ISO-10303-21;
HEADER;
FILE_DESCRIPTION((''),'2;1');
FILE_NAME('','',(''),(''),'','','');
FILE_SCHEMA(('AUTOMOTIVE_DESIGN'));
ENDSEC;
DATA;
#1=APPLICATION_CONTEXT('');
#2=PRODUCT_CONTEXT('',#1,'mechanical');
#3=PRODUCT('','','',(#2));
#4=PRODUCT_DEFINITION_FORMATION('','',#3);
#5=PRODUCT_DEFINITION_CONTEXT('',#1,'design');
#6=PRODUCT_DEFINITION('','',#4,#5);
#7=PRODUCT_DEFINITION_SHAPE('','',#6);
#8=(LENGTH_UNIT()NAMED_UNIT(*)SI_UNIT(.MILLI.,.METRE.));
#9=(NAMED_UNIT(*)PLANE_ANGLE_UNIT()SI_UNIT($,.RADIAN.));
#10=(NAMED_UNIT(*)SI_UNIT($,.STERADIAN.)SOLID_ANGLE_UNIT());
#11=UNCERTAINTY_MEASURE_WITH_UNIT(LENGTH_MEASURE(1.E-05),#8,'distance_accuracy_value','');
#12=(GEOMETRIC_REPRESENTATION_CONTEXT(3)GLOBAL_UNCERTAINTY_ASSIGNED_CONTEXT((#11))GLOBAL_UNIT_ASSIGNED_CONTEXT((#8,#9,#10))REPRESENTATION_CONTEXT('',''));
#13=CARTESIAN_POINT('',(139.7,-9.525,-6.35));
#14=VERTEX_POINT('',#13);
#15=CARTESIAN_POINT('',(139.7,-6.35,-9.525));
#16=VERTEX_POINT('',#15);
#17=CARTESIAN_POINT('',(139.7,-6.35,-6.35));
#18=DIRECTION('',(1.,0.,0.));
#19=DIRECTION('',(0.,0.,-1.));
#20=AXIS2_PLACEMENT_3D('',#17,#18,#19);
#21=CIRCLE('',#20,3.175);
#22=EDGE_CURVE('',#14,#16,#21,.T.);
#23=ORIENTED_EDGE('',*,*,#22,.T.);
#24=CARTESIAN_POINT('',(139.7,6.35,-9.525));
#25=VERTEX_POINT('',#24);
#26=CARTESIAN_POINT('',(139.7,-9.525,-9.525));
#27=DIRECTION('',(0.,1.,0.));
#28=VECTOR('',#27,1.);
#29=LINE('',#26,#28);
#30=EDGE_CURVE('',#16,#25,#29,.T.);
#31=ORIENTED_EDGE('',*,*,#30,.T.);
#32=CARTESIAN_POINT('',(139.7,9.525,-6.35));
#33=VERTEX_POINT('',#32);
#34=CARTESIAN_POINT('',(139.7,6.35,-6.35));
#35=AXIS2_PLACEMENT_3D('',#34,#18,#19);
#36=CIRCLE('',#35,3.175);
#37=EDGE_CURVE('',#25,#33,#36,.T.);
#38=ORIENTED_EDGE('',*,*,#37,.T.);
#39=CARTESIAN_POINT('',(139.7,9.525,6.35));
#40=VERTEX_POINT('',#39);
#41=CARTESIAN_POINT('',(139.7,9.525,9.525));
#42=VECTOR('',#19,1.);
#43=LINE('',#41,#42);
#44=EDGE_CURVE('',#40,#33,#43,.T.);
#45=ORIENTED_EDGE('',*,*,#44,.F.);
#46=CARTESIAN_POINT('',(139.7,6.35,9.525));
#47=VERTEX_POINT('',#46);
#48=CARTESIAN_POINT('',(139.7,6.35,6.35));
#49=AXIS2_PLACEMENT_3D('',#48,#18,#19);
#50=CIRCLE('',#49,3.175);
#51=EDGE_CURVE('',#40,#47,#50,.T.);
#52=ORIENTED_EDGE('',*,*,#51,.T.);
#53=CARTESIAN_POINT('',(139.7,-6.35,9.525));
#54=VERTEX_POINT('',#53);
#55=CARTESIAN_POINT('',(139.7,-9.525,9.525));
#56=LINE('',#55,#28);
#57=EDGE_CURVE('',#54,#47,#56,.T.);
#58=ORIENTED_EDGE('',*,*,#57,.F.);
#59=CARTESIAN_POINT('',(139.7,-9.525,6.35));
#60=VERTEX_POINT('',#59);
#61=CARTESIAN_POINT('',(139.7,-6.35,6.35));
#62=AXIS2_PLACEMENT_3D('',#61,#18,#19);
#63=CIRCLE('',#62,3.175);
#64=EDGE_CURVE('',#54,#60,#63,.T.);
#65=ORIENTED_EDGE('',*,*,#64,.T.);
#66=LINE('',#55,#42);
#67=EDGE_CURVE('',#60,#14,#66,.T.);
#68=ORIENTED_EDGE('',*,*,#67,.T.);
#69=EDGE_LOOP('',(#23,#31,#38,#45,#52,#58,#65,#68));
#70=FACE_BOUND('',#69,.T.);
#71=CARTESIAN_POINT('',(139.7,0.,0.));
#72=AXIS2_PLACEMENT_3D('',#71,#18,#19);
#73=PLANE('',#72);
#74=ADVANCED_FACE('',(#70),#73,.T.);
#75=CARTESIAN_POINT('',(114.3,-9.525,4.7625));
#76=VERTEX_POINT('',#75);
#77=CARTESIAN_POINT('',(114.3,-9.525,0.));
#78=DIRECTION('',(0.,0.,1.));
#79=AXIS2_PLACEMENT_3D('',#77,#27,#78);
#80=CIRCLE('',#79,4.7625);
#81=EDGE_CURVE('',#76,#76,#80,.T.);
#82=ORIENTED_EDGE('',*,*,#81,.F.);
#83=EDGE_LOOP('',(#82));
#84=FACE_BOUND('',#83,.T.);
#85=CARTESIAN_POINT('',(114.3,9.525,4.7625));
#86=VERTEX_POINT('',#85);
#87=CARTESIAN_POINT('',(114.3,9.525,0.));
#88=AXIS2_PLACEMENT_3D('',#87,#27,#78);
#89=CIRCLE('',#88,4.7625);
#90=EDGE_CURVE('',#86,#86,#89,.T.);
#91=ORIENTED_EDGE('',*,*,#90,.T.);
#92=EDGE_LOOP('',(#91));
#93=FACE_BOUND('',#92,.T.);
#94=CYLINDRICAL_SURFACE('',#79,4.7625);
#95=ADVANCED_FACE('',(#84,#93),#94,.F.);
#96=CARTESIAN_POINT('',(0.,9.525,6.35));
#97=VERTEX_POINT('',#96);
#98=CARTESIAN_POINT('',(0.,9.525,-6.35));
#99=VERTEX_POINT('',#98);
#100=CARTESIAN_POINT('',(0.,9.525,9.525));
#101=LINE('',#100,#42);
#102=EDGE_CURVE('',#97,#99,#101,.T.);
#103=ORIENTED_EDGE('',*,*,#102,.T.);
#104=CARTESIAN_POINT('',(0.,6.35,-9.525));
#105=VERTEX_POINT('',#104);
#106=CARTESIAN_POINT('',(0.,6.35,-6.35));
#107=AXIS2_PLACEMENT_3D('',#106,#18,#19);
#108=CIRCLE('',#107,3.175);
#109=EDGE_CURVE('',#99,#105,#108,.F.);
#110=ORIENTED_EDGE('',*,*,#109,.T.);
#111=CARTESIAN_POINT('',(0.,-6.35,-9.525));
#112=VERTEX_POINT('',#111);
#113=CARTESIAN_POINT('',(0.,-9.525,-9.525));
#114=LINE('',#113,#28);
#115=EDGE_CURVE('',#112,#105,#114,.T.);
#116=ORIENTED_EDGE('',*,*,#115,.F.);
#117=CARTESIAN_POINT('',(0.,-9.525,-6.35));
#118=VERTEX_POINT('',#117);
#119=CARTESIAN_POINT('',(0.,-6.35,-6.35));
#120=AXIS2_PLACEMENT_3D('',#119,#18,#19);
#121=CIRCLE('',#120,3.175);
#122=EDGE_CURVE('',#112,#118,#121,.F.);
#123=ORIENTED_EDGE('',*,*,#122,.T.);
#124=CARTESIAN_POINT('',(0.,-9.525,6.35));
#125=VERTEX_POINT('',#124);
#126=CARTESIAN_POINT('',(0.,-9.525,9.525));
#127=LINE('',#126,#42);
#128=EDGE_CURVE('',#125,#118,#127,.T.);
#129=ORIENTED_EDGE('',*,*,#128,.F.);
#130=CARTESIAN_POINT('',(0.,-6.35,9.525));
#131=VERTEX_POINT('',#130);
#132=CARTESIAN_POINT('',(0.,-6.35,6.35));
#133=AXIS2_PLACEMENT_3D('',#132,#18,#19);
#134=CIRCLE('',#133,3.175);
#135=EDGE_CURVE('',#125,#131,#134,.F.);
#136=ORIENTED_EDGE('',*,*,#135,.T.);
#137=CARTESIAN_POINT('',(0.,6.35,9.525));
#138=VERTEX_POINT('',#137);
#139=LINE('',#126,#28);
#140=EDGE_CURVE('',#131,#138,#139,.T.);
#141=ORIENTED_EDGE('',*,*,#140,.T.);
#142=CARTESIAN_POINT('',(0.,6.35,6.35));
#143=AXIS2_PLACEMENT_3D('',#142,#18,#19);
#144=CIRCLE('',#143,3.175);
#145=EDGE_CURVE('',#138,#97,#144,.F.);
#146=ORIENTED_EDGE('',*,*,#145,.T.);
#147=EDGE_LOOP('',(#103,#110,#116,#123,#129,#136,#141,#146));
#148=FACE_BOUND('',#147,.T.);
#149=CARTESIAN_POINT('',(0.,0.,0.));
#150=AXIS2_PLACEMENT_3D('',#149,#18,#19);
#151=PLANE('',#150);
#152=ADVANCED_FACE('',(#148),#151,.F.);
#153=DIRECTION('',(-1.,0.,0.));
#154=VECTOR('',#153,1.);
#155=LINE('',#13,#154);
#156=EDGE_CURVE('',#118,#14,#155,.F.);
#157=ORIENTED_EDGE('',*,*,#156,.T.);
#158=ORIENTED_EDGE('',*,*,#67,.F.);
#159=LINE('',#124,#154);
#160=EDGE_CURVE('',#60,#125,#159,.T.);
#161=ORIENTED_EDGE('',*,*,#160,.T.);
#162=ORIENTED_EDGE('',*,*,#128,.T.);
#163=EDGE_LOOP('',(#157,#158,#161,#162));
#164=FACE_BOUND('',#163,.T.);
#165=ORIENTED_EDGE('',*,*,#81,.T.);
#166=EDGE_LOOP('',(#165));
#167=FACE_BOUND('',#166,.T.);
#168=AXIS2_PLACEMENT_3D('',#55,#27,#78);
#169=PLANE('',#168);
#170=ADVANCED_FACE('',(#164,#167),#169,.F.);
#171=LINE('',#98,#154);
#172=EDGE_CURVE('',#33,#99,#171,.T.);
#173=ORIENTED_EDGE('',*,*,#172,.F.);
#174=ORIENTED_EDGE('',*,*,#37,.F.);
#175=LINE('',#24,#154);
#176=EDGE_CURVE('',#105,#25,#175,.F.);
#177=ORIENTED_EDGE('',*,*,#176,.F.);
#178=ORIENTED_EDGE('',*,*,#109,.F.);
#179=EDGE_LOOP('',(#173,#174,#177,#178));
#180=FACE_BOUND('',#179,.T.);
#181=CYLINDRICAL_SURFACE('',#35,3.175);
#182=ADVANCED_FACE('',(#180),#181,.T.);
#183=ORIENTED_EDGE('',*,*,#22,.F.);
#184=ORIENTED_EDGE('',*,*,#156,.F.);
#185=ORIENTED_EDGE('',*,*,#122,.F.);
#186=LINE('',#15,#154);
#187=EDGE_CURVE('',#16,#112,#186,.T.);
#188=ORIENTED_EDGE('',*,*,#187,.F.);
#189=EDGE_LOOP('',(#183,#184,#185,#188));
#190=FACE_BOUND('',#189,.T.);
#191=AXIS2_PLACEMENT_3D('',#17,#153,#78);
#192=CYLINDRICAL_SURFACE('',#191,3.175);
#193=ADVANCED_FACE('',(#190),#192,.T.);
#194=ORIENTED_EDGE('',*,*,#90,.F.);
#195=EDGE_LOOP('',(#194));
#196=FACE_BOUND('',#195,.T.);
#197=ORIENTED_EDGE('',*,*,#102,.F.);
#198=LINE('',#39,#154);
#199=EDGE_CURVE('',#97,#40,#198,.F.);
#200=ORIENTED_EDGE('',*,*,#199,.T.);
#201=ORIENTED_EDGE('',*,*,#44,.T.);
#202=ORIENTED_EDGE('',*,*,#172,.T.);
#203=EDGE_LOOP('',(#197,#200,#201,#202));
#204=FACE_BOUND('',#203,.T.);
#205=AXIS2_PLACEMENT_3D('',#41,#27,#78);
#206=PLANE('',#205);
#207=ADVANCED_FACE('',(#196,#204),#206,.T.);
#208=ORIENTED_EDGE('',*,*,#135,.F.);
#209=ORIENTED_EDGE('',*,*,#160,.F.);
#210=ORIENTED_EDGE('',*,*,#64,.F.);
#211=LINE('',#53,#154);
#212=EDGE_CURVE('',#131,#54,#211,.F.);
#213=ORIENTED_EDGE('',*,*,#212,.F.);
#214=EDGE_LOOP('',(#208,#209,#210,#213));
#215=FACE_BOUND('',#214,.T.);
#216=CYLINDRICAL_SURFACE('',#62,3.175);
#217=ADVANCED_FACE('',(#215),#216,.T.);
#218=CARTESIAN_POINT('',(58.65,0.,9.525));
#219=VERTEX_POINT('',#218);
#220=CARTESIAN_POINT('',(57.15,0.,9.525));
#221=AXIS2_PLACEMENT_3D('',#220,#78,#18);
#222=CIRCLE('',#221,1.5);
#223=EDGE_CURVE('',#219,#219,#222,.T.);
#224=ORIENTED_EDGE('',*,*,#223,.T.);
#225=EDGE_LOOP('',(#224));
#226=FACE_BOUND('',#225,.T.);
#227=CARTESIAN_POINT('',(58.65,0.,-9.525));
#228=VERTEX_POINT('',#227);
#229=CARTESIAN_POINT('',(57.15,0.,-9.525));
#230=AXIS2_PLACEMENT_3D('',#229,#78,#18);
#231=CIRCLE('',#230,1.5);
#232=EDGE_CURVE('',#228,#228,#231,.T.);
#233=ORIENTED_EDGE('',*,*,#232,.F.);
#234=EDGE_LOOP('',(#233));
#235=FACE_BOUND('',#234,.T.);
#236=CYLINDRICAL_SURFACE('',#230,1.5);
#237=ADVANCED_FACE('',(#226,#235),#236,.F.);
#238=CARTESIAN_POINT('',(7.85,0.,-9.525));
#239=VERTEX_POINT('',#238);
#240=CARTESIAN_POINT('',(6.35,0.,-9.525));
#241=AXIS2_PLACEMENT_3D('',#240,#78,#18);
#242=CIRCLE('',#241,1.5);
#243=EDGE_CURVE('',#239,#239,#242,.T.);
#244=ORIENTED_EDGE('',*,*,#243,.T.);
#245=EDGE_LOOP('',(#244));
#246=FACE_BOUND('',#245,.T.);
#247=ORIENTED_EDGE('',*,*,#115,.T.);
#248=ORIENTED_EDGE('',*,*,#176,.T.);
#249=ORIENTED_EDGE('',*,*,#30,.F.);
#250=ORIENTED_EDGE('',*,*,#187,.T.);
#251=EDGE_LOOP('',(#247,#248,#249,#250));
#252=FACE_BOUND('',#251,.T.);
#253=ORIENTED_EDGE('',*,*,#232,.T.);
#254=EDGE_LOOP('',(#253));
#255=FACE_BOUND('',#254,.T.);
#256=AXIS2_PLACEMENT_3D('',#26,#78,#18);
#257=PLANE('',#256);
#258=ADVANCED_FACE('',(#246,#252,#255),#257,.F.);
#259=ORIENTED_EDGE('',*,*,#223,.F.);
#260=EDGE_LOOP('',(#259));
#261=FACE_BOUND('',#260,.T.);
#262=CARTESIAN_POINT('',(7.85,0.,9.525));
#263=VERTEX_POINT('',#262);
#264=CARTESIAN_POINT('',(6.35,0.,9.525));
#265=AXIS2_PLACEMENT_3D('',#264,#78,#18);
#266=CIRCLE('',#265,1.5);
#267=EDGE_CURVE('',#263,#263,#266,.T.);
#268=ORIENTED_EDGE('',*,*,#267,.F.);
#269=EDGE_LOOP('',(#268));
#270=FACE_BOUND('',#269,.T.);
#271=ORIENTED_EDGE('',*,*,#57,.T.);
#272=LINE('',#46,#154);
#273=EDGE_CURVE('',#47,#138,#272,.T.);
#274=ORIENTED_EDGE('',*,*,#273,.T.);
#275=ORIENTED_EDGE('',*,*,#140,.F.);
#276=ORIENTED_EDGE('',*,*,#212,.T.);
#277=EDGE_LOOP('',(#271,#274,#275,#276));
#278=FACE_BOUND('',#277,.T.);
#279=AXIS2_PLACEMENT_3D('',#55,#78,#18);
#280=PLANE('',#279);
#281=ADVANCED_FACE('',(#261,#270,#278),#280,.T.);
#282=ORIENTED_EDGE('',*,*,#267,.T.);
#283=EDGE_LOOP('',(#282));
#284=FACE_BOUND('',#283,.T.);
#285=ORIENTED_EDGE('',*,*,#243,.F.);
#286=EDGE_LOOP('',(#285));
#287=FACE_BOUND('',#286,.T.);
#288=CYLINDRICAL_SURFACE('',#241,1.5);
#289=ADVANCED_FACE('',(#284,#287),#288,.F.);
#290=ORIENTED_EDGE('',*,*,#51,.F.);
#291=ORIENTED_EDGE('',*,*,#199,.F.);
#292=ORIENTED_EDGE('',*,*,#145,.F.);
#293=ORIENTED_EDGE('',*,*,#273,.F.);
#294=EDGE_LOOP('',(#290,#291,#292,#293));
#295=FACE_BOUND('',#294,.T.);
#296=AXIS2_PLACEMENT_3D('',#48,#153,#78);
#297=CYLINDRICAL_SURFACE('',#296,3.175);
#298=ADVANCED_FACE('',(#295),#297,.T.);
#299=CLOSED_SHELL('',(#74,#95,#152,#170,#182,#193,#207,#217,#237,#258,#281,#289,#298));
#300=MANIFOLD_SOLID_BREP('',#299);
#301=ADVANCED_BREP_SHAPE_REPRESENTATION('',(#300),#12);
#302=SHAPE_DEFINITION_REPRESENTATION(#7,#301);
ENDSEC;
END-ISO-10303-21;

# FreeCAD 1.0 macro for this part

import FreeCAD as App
import Part
import Sketcher

V = App.Vector
Q = App.Units.Quantity


def edges_at(feature, points):
    """Names of the edges that pass closest to the given points."""
    edges = feature.Shape.Edges
    near = lambda p: min(range(len(edges)), key=lambda i: edges[i].distToShape(Part.Vertex(*p))[0])
    return sorted({f"Edge{near(p) + 1}" for p in points})


def add_polygon(sketch, points):
    """Adds a closed chain of lines whose ends are joined by coincident constraints."""
    first, n = sketch.GeometryCount, len(points)
    for a, b in zip(points, points[1:] + points[:1]):
        sketch.addGeometry(Part.LineSegment(App.Vector(*a, 0), App.Vector(*b, 0)), False)
    for i in range(n):
        sketch.addConstraint(Sketcher.Constraint("Coincident", first + i, 2, first + (i + 1) % n, 1))

doc = App.newDocument("Part")
body = doc.addObject("PartDesign::Body", "Body")

sketch1 = body.newObject("Sketcher::SketchObject", "Sketch")
sketch1.AttachmentSupport = (doc.getObject("YZ_Plane"), [""])
sketch1.MapMode = "FlatFace"
add_polygon(sketch1, [(10, 10), (-10, 10), (-10, -10), (10, -10)])
sketch1.addConstraint([
    Sketcher.Constraint("Horizontal", 0),
    Sketcher.Constraint("Vertical", 1),
    Sketcher.Constraint("Horizontal", 2),
    Sketcher.Constraint("Vertical", 3),
    Sketcher.Constraint("Symmetric", 0, 2, 2, 2, -1, 1),
    Sketcher.Constraint("Equal", 2, 1),
    Sketcher.Constraint("DistanceX", 0, 2, 0, 1, Q("0.75 in")),
])
pad1 = body.newObject("PartDesign::Pad", "Pad")
pad1.Profile = sketch1
pad1.Length = Q("5.5 in")

sketch2 = body.newObject("Sketcher::SketchObject", "Sketch001")
sketch2.AttachmentSupport = (doc.getObject("XZ_Plane"), [""])
sketch2.MapMode = "FlatFace"
sketch2.AttachmentOffset = App.Placement(V(0, 0, -0.375 * 25.4), App.Rotation())
sketch2.addGeometry(Part.Circle(V(114.3, 0, 0), V(0, 0, 1), 4.8), False)
sketch2.addConstraint([
    Sketcher.Constraint("PointOnObject", 0, 3, -1),
    Sketcher.Constraint("Diameter", 0, Q("0.375 in")),
    Sketcher.Constraint("DistanceX", -1, 1, 0, 3, Q("4.5 in")),
])
pocket1 = body.newObject("PartDesign::Pocket", "Pocket")
pocket1.Profile = sketch2
pocket1.Type = "ThroughAll"
pocket1.Reversed = True

sketch3 = body.newObject("Sketcher::SketchObject", "Sketch002")
sketch3.AttachmentSupport = (doc.getObject("XY_Plane"), [""])
sketch3.MapMode = "FlatFace"
sketch3.AttachmentOffset = App.Placement(V(0, 0, 0.375 * 25.4), App.Rotation())
sketch3.addGeometry([
    Part.Circle(V(6.3, 0, 0), V(0, 0, 1), 1.5),
    Part.Circle(V(57.1, 0, 0), V(0, 0, 1), 1.5),
], False)
sketch3.addConstraint([
    Sketcher.Constraint("Equal", 0, 1),
    Sketcher.Constraint("PointOnObject", 0, 3, -1),
    Sketcher.Constraint("PointOnObject", 1, 3, -1),
    Sketcher.Constraint("DistanceX", 0, 3, 1, 3, Q("2 in")),
    Sketcher.Constraint("Diameter", 0, 3.0),
    Sketcher.Constraint("DistanceX", -1, 1, 0, 3, Q("0.25 in")),
])
pocket2 = body.newObject("PartDesign::Pocket", "Pocket001")
pocket2.Profile = sketch3
pocket2.Type = "ThroughAll"
doc.recompute()

fillet = body.newObject("PartDesign::Fillet", "Fillet")
fillet.Base = (pocket2, edges_at(pocket2, [
    (69.85, -9.525, 9.525),
    (69.85, 9.525, 9.525),
    (69.85, 9.525, -9.525),
    (69.85, -9.525, -9.525),
]))
fillet.Radius = Q("0.125 in")

doc.recompute()
